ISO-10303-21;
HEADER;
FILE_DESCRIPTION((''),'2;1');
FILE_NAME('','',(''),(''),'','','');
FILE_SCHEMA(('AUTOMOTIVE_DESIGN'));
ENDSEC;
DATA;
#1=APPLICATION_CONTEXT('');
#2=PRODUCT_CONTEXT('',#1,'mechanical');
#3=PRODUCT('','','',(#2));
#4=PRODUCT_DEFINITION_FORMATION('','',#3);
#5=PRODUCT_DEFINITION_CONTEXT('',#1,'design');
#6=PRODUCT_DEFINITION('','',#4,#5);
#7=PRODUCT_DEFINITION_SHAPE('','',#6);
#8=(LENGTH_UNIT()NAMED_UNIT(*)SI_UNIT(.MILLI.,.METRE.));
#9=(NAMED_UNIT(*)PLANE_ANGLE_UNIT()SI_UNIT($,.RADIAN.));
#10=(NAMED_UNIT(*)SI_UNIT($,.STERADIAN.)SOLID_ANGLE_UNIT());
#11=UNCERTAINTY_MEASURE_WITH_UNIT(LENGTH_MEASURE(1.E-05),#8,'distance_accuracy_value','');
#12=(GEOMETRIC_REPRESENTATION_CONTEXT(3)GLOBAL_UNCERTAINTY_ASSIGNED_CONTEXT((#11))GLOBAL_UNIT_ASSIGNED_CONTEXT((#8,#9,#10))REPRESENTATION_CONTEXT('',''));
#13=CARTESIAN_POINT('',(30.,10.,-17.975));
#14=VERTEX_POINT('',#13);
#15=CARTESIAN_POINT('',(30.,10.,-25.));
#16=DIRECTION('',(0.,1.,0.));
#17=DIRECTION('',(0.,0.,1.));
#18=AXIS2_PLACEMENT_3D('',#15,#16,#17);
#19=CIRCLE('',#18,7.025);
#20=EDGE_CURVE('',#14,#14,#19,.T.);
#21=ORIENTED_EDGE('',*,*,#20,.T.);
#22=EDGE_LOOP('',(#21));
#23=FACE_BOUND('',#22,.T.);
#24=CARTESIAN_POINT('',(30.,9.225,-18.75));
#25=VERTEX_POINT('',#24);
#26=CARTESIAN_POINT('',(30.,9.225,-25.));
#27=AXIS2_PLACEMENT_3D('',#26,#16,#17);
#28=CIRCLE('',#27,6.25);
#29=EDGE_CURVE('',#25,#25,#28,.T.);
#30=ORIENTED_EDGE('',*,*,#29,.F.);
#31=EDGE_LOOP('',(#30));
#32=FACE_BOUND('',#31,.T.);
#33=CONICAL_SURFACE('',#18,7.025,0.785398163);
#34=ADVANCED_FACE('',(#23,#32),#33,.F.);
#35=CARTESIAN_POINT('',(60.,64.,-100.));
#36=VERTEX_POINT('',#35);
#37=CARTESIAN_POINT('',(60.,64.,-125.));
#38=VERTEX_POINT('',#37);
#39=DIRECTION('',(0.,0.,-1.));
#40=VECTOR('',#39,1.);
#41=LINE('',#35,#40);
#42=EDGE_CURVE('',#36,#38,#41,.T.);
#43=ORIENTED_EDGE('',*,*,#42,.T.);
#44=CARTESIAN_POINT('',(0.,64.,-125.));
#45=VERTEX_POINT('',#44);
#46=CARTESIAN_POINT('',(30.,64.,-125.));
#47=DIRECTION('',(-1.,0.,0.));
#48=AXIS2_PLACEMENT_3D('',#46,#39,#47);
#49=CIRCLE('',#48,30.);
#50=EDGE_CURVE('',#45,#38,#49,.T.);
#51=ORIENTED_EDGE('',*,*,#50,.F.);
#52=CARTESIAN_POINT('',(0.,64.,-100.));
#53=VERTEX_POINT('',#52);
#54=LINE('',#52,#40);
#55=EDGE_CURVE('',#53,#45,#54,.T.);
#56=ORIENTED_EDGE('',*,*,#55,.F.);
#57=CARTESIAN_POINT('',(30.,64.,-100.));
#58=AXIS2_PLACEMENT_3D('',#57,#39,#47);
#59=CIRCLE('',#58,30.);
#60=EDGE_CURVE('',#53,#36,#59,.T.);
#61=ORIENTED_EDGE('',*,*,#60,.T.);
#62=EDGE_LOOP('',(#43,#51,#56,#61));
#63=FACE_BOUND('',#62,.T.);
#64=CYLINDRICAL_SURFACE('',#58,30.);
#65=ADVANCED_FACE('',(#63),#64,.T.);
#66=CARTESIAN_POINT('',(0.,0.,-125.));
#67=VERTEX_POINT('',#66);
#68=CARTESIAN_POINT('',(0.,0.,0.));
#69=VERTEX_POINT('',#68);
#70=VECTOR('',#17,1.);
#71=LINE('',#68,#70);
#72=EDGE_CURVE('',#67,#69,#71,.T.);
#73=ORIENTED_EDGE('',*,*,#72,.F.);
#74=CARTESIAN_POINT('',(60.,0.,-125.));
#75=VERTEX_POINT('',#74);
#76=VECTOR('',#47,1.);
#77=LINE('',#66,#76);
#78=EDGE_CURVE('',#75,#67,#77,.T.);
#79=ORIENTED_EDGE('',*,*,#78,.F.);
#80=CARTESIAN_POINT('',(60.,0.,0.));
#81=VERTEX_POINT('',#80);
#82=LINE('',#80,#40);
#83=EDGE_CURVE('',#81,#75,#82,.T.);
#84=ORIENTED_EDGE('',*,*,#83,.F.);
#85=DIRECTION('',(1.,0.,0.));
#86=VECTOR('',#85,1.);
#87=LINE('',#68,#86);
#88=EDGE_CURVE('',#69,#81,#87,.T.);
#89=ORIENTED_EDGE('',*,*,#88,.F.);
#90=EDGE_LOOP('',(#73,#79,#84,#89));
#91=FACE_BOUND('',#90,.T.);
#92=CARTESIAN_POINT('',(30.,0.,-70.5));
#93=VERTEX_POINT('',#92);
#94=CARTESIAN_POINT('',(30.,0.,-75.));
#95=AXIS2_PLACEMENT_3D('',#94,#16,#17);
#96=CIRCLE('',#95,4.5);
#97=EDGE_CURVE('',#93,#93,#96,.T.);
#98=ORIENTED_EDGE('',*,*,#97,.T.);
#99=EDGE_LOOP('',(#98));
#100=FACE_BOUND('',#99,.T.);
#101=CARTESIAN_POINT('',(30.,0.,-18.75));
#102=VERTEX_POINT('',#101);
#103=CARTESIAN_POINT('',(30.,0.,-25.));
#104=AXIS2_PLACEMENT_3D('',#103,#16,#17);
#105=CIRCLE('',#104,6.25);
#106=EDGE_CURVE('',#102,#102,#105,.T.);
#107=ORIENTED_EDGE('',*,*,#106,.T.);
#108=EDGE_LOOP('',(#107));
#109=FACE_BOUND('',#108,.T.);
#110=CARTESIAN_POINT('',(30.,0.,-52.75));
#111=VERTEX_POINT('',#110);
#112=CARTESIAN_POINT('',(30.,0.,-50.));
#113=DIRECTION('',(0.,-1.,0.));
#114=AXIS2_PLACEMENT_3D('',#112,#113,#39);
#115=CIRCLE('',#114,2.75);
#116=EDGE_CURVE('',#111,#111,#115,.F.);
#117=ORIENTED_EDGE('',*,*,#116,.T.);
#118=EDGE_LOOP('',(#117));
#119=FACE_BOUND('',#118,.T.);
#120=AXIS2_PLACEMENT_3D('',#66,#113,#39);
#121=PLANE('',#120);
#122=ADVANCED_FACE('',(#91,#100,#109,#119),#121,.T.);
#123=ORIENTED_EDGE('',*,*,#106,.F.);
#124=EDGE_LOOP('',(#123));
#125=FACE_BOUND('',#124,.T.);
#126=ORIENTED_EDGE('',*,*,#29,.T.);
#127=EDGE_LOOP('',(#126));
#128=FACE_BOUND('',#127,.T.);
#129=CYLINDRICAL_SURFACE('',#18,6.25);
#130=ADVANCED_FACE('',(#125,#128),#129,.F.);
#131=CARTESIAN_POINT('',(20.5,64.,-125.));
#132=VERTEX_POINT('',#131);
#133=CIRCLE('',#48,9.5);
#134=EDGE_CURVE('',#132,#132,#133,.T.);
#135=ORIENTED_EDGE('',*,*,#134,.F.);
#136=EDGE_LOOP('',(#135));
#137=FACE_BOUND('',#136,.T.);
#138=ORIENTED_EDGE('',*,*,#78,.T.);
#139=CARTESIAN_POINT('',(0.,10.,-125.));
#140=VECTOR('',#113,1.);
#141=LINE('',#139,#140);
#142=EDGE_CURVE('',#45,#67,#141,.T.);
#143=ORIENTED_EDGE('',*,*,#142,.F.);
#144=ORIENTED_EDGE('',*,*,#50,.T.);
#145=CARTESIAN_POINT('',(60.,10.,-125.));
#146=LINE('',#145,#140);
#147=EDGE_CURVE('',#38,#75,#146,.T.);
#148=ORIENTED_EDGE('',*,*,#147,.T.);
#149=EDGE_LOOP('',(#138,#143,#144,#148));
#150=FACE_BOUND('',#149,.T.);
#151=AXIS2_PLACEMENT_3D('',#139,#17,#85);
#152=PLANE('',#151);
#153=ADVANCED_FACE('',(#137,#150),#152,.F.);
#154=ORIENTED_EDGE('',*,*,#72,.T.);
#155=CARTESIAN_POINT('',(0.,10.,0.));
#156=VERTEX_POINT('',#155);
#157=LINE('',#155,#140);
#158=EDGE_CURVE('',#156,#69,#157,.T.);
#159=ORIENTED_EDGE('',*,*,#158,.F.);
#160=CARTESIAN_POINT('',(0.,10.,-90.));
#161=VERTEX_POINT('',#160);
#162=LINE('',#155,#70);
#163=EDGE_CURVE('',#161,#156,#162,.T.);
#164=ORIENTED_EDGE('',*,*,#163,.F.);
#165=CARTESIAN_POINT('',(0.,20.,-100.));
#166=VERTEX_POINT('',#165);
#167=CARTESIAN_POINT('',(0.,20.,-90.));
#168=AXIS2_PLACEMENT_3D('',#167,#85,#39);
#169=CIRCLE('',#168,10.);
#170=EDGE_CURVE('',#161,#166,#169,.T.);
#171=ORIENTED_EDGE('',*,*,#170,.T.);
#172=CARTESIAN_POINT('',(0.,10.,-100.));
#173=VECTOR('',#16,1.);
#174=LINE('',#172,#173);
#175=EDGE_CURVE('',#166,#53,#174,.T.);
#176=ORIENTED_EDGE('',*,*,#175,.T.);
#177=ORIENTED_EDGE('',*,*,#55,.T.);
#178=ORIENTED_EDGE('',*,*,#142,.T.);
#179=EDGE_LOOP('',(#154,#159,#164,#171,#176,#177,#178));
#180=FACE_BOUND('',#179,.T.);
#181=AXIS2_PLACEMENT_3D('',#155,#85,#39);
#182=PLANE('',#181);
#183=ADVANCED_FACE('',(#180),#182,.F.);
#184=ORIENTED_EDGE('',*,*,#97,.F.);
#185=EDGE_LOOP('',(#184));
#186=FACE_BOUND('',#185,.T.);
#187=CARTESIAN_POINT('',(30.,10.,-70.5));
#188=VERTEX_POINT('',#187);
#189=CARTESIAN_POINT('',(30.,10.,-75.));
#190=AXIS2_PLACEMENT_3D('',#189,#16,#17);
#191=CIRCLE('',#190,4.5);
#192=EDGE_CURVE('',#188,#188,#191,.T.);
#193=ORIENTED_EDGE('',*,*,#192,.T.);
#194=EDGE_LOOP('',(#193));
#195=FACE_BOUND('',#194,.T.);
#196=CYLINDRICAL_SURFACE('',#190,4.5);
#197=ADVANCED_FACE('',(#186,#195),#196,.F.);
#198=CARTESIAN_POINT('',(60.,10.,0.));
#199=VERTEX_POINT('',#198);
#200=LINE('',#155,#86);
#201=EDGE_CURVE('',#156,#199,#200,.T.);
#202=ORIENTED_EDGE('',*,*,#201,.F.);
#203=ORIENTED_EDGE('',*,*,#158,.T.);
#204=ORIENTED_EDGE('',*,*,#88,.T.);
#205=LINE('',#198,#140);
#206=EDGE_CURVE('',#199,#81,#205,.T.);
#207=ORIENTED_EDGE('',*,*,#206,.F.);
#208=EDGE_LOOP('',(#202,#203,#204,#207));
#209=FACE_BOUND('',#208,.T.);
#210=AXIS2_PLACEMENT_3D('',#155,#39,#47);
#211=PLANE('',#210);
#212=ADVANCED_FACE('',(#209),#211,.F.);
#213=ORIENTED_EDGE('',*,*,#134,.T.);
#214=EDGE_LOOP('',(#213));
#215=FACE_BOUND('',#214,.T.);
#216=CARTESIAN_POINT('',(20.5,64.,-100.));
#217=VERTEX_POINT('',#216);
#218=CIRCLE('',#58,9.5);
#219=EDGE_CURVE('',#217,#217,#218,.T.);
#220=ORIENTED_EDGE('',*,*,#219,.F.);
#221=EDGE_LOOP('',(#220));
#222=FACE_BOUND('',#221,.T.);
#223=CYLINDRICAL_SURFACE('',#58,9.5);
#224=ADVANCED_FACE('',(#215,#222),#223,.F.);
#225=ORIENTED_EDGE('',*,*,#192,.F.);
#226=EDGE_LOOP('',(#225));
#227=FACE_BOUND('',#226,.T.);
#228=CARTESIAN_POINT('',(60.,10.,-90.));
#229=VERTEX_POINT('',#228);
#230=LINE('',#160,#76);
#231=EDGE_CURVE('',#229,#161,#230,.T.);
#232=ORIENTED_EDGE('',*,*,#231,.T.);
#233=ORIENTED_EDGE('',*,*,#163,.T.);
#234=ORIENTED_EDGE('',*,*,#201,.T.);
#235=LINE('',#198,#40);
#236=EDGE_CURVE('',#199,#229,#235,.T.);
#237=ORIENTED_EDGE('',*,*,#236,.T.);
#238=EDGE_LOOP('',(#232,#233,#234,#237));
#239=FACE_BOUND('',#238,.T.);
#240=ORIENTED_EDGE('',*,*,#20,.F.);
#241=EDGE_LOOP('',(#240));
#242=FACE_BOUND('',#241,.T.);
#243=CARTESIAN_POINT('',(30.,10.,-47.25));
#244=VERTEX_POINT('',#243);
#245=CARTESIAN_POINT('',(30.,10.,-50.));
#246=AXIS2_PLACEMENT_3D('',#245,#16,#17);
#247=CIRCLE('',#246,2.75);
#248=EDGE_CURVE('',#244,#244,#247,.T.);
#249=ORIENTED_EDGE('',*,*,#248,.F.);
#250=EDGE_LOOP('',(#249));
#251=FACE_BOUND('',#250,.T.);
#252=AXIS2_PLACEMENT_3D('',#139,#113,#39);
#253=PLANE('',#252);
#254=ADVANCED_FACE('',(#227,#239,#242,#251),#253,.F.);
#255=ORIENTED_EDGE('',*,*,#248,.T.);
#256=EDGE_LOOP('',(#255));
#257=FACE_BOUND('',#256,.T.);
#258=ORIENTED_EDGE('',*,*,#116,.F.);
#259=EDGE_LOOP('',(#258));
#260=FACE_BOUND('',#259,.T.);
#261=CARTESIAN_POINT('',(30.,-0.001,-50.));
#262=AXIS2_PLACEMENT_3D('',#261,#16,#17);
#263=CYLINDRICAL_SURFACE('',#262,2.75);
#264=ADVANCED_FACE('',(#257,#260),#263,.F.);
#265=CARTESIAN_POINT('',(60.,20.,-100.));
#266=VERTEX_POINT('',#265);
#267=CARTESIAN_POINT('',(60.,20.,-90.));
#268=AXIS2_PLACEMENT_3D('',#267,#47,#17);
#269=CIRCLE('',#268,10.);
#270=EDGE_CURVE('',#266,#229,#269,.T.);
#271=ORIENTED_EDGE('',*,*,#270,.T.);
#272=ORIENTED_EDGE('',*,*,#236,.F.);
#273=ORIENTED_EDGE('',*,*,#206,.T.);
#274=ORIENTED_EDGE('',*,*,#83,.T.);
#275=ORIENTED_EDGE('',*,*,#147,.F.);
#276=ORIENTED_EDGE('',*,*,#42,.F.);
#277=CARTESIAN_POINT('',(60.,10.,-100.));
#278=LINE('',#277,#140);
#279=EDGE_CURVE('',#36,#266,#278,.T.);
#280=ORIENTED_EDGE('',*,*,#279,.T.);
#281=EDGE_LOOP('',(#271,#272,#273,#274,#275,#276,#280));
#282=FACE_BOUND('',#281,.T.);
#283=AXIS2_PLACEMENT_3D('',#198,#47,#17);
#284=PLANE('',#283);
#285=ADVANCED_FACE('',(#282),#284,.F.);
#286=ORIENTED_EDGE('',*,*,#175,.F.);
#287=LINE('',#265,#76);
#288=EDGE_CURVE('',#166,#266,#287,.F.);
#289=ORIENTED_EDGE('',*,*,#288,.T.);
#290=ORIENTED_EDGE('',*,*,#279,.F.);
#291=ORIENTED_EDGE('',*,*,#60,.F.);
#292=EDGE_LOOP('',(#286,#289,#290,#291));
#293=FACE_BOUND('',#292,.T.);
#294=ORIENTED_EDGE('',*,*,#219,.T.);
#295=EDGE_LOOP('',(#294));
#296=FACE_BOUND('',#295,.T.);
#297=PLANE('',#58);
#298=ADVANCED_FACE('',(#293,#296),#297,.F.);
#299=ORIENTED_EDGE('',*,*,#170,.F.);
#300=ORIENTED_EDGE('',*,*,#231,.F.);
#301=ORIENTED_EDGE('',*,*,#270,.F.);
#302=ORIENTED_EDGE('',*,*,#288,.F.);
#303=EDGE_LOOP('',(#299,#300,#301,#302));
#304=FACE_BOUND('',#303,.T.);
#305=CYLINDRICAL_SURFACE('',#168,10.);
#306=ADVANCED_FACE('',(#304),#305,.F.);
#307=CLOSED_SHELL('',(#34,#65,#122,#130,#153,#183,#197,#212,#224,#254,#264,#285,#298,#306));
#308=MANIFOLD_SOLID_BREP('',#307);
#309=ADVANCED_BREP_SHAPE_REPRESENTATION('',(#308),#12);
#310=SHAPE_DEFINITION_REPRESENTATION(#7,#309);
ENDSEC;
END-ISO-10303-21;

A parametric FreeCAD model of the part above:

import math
import FreeCAD as App
import Part
import Sketcher


def edges_at(feature, points):
    """Names of the edges that pass closest to the given points."""
    edges = feature.Shape.Edges
    near = lambda p: min(range(len(edges)), key=lambda i: edges[i].distToShape(Part.Vertex(*p))[0])
    return sorted({f"Edge{near(p) + 1}" for p in points})

doc = App.newDocument("Part")
body = doc.addObject("PartDesign::Body", "Body")

sketch1 = body.newObject("Sketcher::SketchObject", "Sketch")
sketch1.AttachmentSupport = (doc.getObject("XZ_Plane"), [""])
sketch1.MapMode = "FlatFace"
sketch1.addGeometry([
    Part.LineSegment(App.Vector(0, -125, 0), App.Vector(0, 0, 0)),
    Part.LineSegment(App.Vector(0, 0, 0), App.Vector(60, 0, 0)),
    Part.LineSegment(App.Vector(60, 0, 0), App.Vector(60, -125, 0)),
    Part.LineSegment(App.Vector(60, -125, 0), App.Vector(0, -125, 0)),
], False)
sketch1.addConstraint([
    Sketcher.Constraint("Coincident", 0, 2, 1, 1),
    Sketcher.Constraint("Coincident", 1, 2, 2, 1),
    Sketcher.Constraint("Coincident", 2, 2, 3, 1),
    Sketcher.Constraint("Coincident", 3, 2, 0, 1),
    Sketcher.Constraint("Vertical", 0),
    Sketcher.Constraint("Horizontal", 1),
    Sketcher.Constraint("Vertical", 2),
    Sketcher.Constraint("Horizontal", 3),
    Sketcher.Constraint("Coincident", 0, 2, -1, 1),
    Sketcher.Constraint("DistanceX", 1, 1, 1, 2, 60.0),
    Sketcher.Constraint("DistanceY", 0, 1, 0, 2, 125.0),
])
pad1 = body.newObject("PartDesign::Pad", "Pad")
pad1.Profile = sketch1
pad1.Length = 10
pad1.Reversed = True

sketch2 = body.newObject("Sketcher::SketchObject", "Sketch001")
sketch2.AttachmentSupport = (doc.getObject("XY_Plane"), [""])
sketch2.MapMode = "FlatFace"
sketch2.AttachmentOffset = App.Placement(App.Vector(0, 0, -125), App.Rotation())
sketch2.addGeometry([
    Part.LineSegment(App.Vector(60, 10, 0), App.Vector(0, 10, 0)),
    Part.LineSegment(App.Vector(0, 10, 0), App.Vector(0, 64, 0)),
    Part.ArcOfCircle(Part.Circle(App.Vector(30, 64, 0), App.Vector(0, 0, 1), 30), math.radians(0), math.radians(180)),
    Part.LineSegment(App.Vector(60, 64, 0), App.Vector(60, 10, 0)),
    Part.Circle(App.Vector(30, 64, 0), App.Vector(0, 0, 1), 10),
], False)
sketch2.addConstraint([
    Sketcher.Constraint("Coincident", 0, 2, 1, 1),
    Sketcher.Constraint("Tangent", 1, 2, 2, 2),
    Sketcher.Constraint("Tangent", 2, 1, 3, 1),
    Sketcher.Constraint("Coincident", 3, 2, 0, 1),
    Sketcher.Constraint("Horizontal", 0),
    Sketcher.Constraint("Vertical", 1),
    Sketcher.Constraint("Vertical", 3),
    Sketcher.Constraint("Coincident", 4, 3, 2, 3),
    Sketcher.Constraint("PointOnObject", 0, 2, -2),
    Sketcher.Constraint("Diameter", 4, 19.0),
    Sketcher.Constraint("Radius", 2, 30.0),
    Sketcher.Constraint("DistanceY", 1, 1, 1, 2, 54.0),
    Sketcher.Constraint("DistanceY", -1, 1, 2, 3, 64.0),
])
pad2 = body.newObject("PartDesign::Pad", "Pad001")
pad2.Profile = sketch2
pad2.Length = 25

sketch3 = body.newObject("Sketcher::SketchObject", "Sketch002")
sketch3.AttachmentSupport = (doc.getObject("XZ_Plane"), [""])
sketch3.MapMode = "FlatFace"
sketch3.AttachmentOffset = App.Placement(App.Vector(0, 0, -10), App.Rotation())
sketch3.addGeometry(Part.Circle(App.Vector(30, -50, 0), App.Vector(0, 0, 1), 2.8), False)
sketch3.addConstraint([
    Sketcher.Constraint("Diameter", 0, 5.5),
    Sketcher.Constraint("DistanceX", -1, 1, 0, 3, 30.0),
    Sketcher.Constraint("DistanceY", 0, 3, -1, 1, 50.0),
])
pocket1 = body.newObject("PartDesign::Pocket", "Pocket")
pocket1.Profile = sketch3
pocket1.Type = "UpToFirst"
pocket1.Reversed = True

sketch4 = body.newObject("Sketcher::SketchObject", "Sketch003")
sketch4.AttachmentSupport = (doc.getObject("XZ_Plane"), [""])
sketch4.MapMode = "FlatFace"
sketch4.AttachmentOffset = App.Placement(App.Vector(0, 0, -10), App.Rotation())
sketch4.addGeometry(Part.Circle(App.Vector(30, -75, 0), App.Vector(0, 0, 1), 4.5), False)
sketch4.addConstraint([
    Sketcher.Constraint("Diameter", 0, 9.0),
    Sketcher.Constraint("DistanceX", -1, 1, 0, 3, 30.0),
    Sketcher.Constraint("DistanceY", 0, 3, -1, 1, 75.0),
])
doc.recompute()
hole = body.newObject("PartDesign::Hole", "Hole")
hole.Profile = sketch4
hole.ThreadType = "None"
hole.Diameter = 9
hole.DepthType = "ThroughAll"
hole.Reversed = True

sketch5 = body.newObject("Sketcher::SketchObject", "Sketch004")
sketch5.AttachmentSupport = (doc.getObject("XZ_Plane"), [""])
sketch5.MapMode = "FlatFace"
sketch5.AttachmentOffset = App.Placement(App.Vector(0, 0, -10), App.Rotation())
sketch5.addGeometry(Part.Circle(App.Vector(30, -25, 0), App.Vector(0, 0, 1), 6), False)
sketch5.addConstraint([
    Sketcher.Constraint("Diameter", 0, 12.5),
    Sketcher.Constraint("DistanceX", -1, 1, 0, 3, 30.0),
    Sketcher.Constraint("DistanceY", 0, 3, -1, 1, 25.0),
])
doc.recompute()
hole2 = body.newObject("PartDesign::Hole", "Hole001")
hole2.Profile = sketch5
hole2.ThreadType = "None"
hole2.Diameter = 12.5
hole2.DepthType = "ThroughAll"
hole2.HoleCutType = "Countersink"
hole2.HoleCutDiameter = 14.05
hole2.HoleCutCountersinkAngle = 90
hole2.Reversed = True
doc.recompute()

fillet = body.newObject("PartDesign::Fillet", "Fillet")
fillet.Base = (hole2, edges_at(hole2, [(30, 10, -100)]))
fillet.Radius = 10

doc.recompute()
